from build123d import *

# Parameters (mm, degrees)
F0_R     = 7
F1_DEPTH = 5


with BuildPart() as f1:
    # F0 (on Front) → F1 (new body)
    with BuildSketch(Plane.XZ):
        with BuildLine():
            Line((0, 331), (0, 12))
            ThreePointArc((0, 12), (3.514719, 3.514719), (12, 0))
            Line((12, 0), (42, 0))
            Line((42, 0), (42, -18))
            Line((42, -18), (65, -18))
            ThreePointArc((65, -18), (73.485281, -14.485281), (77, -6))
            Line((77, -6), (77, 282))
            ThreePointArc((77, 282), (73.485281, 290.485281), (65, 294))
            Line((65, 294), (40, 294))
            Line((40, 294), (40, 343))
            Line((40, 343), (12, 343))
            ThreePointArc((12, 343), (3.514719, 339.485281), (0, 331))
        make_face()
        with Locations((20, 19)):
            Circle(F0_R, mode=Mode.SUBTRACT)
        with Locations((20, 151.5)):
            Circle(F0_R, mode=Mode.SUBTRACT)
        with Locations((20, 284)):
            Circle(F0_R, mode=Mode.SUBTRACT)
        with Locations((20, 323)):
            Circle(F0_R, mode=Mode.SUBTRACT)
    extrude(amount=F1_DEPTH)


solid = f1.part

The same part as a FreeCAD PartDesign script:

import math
import FreeCAD as App
import Part
import Sketcher
from FreeCAD import Vector
Q = App.Units.Quantity

doc = App.newDocument("Part")
params = doc.addObject("Spreadsheet::Sheet", "Params")
for row, (alias, value) in enumerate([
    ("sketch1_diameter", "14 mm"),
    ("sketch1_radius", "12.000001 mm"),
    ("sketch1_width", "30 mm"),
    ("sketch1_width2", "23 mm"),
    ("sketch1_width3", "25 mm"),
    ("pad1_length", "5 mm"),
], start=1):
    params.set(f"A{row}", alias)
    params.set(f"B{row}", "=" + value)
    params.setAlias(f"B{row}", alias)

body = doc.addObject("PartDesign::Body", "Body")

sketch1 = body.newObject("Sketcher::SketchObject", "Sketch")
sketch1.AttachmentSupport = (doc.getObject("XZ_Plane"), [""])
sketch1.MapMode = "FlatFace"
sketch1.addGeometry(Part.LineSegment(Vector(0, 331, 0), Vector(0, 12, 0)), False)
sketch1.addGeometry(Part.ArcOfCircle(Part.Circle(Vector(12.000001, 12.000001, 0), Vector(0, 0, 1), 12.000001), math.radians(-179.999994), math.radians(-90.000006)), False)
sketch1.addGeometry(Part.LineSegment(Vector(12, 0, 0), Vector(42, 0, 0)), False)
sketch1.addGeometry(Part.LineSegment(Vector(42, 0, 0), Vector(42, -18, 0)), False)
sketch1.addGeometry(Part.LineSegment(Vector(42, -18, 0), Vector(65, -18, 0)), False)
sketch1.addGeometry(Part.ArcOfCircle(Part.Circle(Vector(64.999999, -5.999999, 0), Vector(0, 0, 1), 12.000001), math.radians(-89.999994), math.radians(-0.000006)), False)
sketch1.addGeometry(Part.LineSegment(Vector(77, -6, 0), Vector(77, 282, 0)), False)
sketch1.addGeometry(Part.ArcOfCircle(Part.Circle(Vector(64.999999, 281.999999, 0), Vector(0, 0, 1), 12.000001), math.radians(0.000006), math.radians(89.999994)), False)
sketch1.addGeometry(Part.LineSegment(Vector(65, 294, 0), Vector(40, 294, 0)), False)
sketch1.addGeometry(Part.LineSegment(Vector(40, 294, 0), Vector(40, 343, 0)), False)
sketch1.addGeometry(Part.LineSegment(Vector(40, 343, 0), Vector(12, 343, 0)), False)
sketch1.addGeometry(Part.ArcOfCircle(Part.Circle(Vector(12.000001, 330.999999, 0), Vector(0, 0, 1), 12.000001), math.radians(90.000006), math.radians(179.999994)), False)
sketch1.addGeometry(Part.Circle(Vector(20, 19, 0), Vector(0, 0, 1), 7), False)
sketch1.addGeometry(Part.Circle(Vector(20, 151.5, 0), Vector(0, 0, 1), 7), False)
sketch1.addGeometry(Part.Circle(Vector(20, 284, 0), Vector(0, 0, 1), 7), False)
sketch1.addGeometry(Part.Circle(Vector(20, 323, 0), Vector(0, 0, 1), 7), False)
sketch1.addConstraint(Sketcher.Constraint("Tangent", 0, 2, 1, 1))
sketch1.addConstraint(Sketcher.Constraint("Tangent", 1, 2, 2, 1))
sketch1.addConstraint(Sketcher.Constraint("Coincident", 2, 2, 3, 1))
sketch1.addConstraint(Sketcher.Constraint("Coincident", 3, 2, 4, 1))
sketch1.addConstraint(Sketcher.Constraint("Tangent", 4, 2, 5, 1))
sketch1.addConstraint(Sketcher.Constraint("Tangent", 5, 2, 6, 1))
sketch1.addConstraint(Sketcher.Constraint("Tangent", 6, 2, 7, 1))
sketch1.addConstraint(Sketcher.Constraint("Tangent", 7, 2, 8, 1))
sketch1.addConstraint(Sketcher.Constraint("Coincident", 8, 2, 9, 1))
sketch1.addConstraint(Sketcher.Constraint("Coincident", 9, 2, 10, 1))
sketch1.addConstraint(Sketcher.Constraint("Tangent", 10, 2, 11, 1))
sketch1.addConstraint(Sketcher.Constraint("Tangent", 11, 2, 0, 1))
sketch1.addConstraint(Sketcher.Constraint("Vertical", 0))
sketch1.addConstraint(Sketcher.Constraint("Horizontal", 2))
sketch1.addConstraint(Sketcher.Constraint("Vertical", 3))
sketch1.addConstraint(Sketcher.Constraint("Horizontal", 4))
sketch1.addConstraint(Sketcher.Constraint("Vertical", 6))
sketch1.addConstraint(Sketcher.Constraint("Horizontal", 8))
sketch1.addConstraint(Sketcher.Constraint("Vertical", 9))
sketch1.addConstraint(Sketcher.Constraint("Horizontal", 10))
sketch1.addConstraint(Sketcher.Constraint("Equal", 1, 5))
sketch1.addConstraint(Sketcher.Constraint("Equal", 5, 7))
sketch1.addConstraint(Sketcher.Constraint("Equal", 7, 11))
sketch1.addConstraint(Sketcher.Constraint("Equal", 12, 13))
sketch1.addConstraint(Sketcher.Constraint("Equal", 13, 14))
sketch1.addConstraint(Sketcher.Constraint("Equal", 14, 15))
sketch1.addConstraint(Sketcher.Constraint("PointOnObject", 0, 2, -2))
sketch1.addConstraint(Sketcher.Constraint("PointOnObject", 1, 2, -1))
sketch1.addConstraint(Sketcher.Constraint("Vertical", 12, 3, 13, 3))
sketch1.addConstraint(Sketcher.Constraint("Vertical", 13, 3, 14, 3))
sketch1.addConstraint(Sketcher.Constraint("Vertical", 14, 3, 15, 3))
sketch1.addConstraint(Sketcher.Constraint("Diameter", 12, Q("14 mm")))
sketch1.addConstraint(Sketcher.Constraint("Radius", 1, Q("12.000001 mm")))
sketch1.addConstraint(Sketcher.Constraint("DistanceX", 2, 1, 2, 2, Q("30 mm")))
sketch1.addConstraint(Sketcher.Constraint("DistanceX", 4, 1, 4, 2, Q("23 mm")))
sketch1.addConstraint(Sketcher.Constraint("DistanceX", 8, 2, 8, 1, Q("25 mm")))
sketch1.addConstraint(Sketcher.Constraint("DistanceY", 0, 2, 0, 1, Q("319 mm")))
sketch1.addConstraint(Sketcher.Constraint("DistanceY", 3, 2, 3, 1, Q("18 mm")))
sketch1.addConstraint(Sketcher.Constraint("DistanceY", 6, 1, 6, 2, Q("288 mm")))
sketch1.addConstraint(Sketcher.Constraint("DistanceX", -1, 1, 12, 3, Q("20 mm")))
sketch1.addConstraint(Sketcher.Constraint("DistanceY", -1, 1, 12, 3, Q("19 mm")))
sketch1.addConstraint(Sketcher.Constraint("DistanceY", -1, 1, 14, 3, Q("284 mm")))
sketch1.addConstraint(Sketcher.Constraint("DistanceY", -1, 1, 15, 3, Q("323 mm")))
sketch1.addConstraint(Sketcher.Constraint("DistanceY", -1, 1, 13, 3, Q("151.5 mm")))
sketch1.setExpression("Constraints[31]", "Params.sketch1_diameter")
sketch1.setExpression("Constraints[32]", "Params.sketch1_radius")
sketch1.setExpression("Constraints[33]", "Params.sketch1_width")
sketch1.setExpression("Constraints[34]", "Params.sketch1_width2")
sketch1.setExpression("Constraints[35]", "Params.sketch1_width3")
pad1 = body.newObject("PartDesign::Pad", "Pad")
pad1.Profile = sketch1
pad1.setExpression("Length", "Params.pad1_length")

doc.recompute()
